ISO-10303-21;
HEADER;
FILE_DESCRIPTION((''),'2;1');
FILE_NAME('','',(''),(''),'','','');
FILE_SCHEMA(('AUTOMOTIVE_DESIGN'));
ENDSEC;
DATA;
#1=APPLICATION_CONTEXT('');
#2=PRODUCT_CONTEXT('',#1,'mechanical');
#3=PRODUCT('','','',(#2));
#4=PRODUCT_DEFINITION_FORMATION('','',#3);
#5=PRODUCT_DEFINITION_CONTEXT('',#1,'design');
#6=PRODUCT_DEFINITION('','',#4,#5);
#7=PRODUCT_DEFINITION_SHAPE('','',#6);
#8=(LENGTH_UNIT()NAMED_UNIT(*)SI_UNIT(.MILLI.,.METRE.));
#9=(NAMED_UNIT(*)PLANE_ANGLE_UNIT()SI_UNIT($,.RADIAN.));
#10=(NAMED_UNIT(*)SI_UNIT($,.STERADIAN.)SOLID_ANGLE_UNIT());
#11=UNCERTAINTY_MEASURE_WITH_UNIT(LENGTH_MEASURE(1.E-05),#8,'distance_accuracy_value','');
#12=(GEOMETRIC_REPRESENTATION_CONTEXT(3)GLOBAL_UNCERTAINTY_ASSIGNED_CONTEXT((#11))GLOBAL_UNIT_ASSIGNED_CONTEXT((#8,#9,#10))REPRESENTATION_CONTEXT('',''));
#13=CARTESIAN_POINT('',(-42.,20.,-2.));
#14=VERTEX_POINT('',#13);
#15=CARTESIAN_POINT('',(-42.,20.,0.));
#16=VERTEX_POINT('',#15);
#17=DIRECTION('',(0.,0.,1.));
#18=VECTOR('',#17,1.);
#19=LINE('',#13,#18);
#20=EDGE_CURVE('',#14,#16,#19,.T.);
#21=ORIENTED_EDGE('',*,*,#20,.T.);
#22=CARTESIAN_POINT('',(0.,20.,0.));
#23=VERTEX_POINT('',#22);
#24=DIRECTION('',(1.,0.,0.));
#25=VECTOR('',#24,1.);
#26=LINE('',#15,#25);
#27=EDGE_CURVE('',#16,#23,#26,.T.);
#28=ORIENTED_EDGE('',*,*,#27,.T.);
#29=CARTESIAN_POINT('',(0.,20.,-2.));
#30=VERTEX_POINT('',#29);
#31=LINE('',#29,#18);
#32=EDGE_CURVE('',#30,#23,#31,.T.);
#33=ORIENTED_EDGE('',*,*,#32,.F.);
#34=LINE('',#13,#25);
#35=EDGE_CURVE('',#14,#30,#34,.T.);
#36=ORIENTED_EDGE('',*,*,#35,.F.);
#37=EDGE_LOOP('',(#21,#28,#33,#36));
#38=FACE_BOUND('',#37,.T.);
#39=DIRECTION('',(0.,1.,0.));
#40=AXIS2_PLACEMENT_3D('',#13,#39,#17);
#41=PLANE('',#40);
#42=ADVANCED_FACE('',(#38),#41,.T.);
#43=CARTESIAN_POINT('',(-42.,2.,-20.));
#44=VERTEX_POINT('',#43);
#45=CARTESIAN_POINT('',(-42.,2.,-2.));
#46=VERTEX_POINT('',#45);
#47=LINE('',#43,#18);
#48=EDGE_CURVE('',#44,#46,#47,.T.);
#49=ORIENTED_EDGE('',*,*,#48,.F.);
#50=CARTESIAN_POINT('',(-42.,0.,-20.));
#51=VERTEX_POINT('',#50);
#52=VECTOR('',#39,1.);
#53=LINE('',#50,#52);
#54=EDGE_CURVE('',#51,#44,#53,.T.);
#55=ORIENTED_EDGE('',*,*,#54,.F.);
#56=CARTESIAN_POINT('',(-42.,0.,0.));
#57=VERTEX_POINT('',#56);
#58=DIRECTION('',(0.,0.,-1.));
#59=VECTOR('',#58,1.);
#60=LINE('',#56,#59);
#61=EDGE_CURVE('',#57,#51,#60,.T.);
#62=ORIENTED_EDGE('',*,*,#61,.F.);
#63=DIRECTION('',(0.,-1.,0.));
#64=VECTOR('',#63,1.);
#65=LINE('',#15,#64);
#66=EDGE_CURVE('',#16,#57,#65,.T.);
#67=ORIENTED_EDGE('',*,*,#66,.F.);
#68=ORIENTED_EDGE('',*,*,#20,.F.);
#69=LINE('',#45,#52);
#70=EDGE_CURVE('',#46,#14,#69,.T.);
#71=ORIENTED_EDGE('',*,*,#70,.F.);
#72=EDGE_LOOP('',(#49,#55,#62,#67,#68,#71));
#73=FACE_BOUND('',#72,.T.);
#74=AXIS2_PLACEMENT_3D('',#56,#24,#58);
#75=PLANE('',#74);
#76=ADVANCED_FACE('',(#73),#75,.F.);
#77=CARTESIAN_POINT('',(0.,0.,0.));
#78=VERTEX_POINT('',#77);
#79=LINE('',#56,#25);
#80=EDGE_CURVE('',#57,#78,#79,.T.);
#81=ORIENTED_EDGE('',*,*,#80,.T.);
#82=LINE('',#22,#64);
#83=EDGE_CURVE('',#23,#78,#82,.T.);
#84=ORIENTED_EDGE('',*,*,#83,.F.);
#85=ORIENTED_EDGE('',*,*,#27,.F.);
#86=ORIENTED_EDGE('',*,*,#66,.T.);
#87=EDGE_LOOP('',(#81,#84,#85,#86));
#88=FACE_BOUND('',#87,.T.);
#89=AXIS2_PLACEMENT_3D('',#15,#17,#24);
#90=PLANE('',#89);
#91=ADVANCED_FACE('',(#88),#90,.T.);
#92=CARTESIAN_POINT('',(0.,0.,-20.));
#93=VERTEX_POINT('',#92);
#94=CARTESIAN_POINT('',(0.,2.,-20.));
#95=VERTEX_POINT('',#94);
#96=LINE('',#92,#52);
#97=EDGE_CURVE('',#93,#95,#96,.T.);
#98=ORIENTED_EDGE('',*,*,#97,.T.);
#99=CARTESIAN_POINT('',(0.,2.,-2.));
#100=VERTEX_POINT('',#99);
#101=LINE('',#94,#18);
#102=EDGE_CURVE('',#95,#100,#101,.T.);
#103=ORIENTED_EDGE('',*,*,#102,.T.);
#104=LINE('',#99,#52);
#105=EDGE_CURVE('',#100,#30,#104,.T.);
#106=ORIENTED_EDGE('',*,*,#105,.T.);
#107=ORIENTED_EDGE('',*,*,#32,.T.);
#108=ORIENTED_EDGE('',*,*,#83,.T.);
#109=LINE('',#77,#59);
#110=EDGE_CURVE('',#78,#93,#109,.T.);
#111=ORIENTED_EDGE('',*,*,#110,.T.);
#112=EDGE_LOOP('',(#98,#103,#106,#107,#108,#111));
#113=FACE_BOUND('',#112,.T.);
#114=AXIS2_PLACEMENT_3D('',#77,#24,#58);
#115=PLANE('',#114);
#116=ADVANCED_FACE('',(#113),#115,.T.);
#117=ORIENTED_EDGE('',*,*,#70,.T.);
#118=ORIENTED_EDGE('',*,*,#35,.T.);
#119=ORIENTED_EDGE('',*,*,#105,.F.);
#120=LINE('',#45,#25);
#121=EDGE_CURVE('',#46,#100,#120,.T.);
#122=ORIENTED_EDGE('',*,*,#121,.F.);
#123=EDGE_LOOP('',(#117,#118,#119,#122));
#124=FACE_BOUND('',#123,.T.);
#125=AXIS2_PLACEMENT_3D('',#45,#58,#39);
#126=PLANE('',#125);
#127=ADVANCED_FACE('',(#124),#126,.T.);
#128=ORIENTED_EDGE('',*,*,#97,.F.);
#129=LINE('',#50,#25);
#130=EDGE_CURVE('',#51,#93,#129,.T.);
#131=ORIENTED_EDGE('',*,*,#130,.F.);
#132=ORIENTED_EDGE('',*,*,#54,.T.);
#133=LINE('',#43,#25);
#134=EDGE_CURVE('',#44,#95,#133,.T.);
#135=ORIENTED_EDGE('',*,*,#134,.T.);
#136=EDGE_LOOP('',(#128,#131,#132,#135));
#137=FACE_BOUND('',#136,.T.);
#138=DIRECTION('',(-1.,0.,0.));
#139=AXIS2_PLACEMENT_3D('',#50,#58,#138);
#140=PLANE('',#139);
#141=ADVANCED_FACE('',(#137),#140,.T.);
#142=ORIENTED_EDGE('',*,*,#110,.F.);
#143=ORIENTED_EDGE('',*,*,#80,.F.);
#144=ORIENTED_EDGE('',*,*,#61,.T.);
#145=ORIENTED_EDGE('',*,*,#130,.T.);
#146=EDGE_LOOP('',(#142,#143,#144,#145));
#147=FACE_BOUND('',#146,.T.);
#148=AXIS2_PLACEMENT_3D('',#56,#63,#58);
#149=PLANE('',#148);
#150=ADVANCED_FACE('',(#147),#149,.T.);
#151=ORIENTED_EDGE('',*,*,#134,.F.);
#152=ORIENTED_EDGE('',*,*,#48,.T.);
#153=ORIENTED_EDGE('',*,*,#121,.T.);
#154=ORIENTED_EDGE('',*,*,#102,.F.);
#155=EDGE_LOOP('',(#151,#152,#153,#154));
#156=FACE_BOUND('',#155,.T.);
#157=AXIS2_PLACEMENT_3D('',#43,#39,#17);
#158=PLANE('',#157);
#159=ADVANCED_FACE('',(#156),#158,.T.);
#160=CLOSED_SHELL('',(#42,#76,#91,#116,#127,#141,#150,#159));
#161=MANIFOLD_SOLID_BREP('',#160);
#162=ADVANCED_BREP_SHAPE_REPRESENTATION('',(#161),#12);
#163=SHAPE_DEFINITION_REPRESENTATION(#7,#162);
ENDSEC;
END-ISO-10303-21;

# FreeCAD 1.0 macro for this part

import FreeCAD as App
import Part
import Sketcher

V = App.Vector
Q = App.Units.Quantity


def add_polygon(sketch, points):
    """Adds a closed chain of lines whose ends are joined by coincident constraints."""
    first, n = sketch.GeometryCount, len(points)
    for a, b in zip(points, points[1:] + points[:1]):
        sketch.addGeometry(Part.LineSegment(App.Vector(*a, 0), App.Vector(*b, 0)), False)
    for i in range(n):
        sketch.addConstraint(Sketcher.Constraint("Coincident", first + i, 2, first + (i + 1) % n, 1))

doc = App.newDocument("Part")
params = doc.addObject("Spreadsheet::Sheet", "Params")
for row, (alias, value) in enumerate([
    ("sketch1_width", "20 mm"),
    ("sketch1_width2", "2 mm"),
    ("pad1_length", "42 mm"),
], start=1):
    params.set(f"A{row}", alias)
    params.set(f"B{row}", "=" + value)
    params.setAlias(f"B{row}", alias)

body = doc.addObject("PartDesign::Body", "Body")

# Sketch on YZ plane
sketch1 = body.newObject("Sketcher::SketchObject", "Sketch")
sketch1.AttachmentSupport = (doc.getObject("YZ_Plane"), [""])
sketch1.MapMode = "FlatFace"
add_polygon(sketch1, [(20, 0), (0, 0), (0, -20), (2, -20), (2, -2), (20, -2)])  # lines 0-5
sketch1.addConstraint(Sketcher.Constraint("Horizontal", 0))
sketch1.addConstraint(Sketcher.Constraint("Vertical", 1))
sketch1.addConstraint(Sketcher.Constraint("Horizontal", 2))
sketch1.addConstraint(Sketcher.Constraint("Vertical", 3))
sketch1.addConstraint(Sketcher.Constraint("Horizontal", 4))
sketch1.addConstraint(Sketcher.Constraint("Vertical", 5))
sketch1.addConstraint(Sketcher.Constraint("Coincident", 0, 2, -1, 1))
sketch1.addConstraint(Sketcher.Constraint("Equal", 0, 1))
sketch1.addConstraint(Sketcher.Constraint("Equal", 4, 3))
sketch1.addConstraint(Sketcher.Constraint("DistanceX", 0, 2, 0, 1, Q("20 mm")))
sketch1.addConstraint(Sketcher.Constraint("DistanceX", 2, 1, 2, 2, Q("2 mm")))
sketch1.setExpression("Constraints[15]", "Params.sketch1_width")
sketch1.setExpression("Constraints[16]", "Params.sketch1_width2")
pad1 = body.newObject("PartDesign::Pad", "Pad")
pad1.Profile = sketch1
pad1.setExpression("Length", "Params.pad1_length")
pad1.Reversed = True

doc.recompute()
